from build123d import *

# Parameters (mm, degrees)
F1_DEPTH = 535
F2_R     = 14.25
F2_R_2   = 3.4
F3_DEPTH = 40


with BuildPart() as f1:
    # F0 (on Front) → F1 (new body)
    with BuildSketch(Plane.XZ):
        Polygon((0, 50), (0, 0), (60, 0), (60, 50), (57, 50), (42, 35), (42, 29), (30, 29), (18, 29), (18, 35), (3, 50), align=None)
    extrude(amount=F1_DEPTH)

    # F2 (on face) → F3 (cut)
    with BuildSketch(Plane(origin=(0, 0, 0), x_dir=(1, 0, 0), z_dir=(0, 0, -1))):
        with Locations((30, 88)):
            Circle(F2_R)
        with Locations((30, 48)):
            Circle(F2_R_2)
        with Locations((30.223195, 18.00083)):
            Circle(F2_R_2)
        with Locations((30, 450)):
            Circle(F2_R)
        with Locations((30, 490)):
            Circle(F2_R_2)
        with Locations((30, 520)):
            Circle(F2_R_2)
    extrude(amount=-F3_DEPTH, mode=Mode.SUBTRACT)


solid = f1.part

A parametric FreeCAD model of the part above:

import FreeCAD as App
import Part
import Sketcher
from FreeCAD import Vector
Q = App.Units.Quantity


def add_polygon(sketch, points):
    """Adds a closed chain of lines whose ends are joined by coincident constraints."""
    first, n = sketch.GeometryCount, len(points)
    for a, b in zip(points, points[1:] + points[:1]):
        sketch.addGeometry(Part.LineSegment(App.Vector(*a, 0), App.Vector(*b, 0)), False)
    for i in range(n):
        sketch.addConstraint(Sketcher.Constraint("Coincident", first + i, 2, first + (i + 1) % n, 1))

doc = App.newDocument("Part")
params = doc.addObject("Spreadsheet::Sheet", "Params")
for row, (alias, value) in enumerate([
    ("sketch1_width", "60 mm"),
    ("sketch1_width2", "3 mm"),
    ("sketch1_width3", "24 mm"),
    ("sketch1_height", "50 mm"),
    ("sketch1_height2", "6 mm"),
    ("pad1_length", "535 mm"),
    ("sketch2_diameter", "28.5 mm"),
    ("sketch2_diameter2", "6.8 mm"),
    ("pocket1_length", "40 mm"),
], start=1):
    params.set(f"A{row}", alias)
    params.set(f"B{row}", "=" + value)
    params.setAlias(f"B{row}", alias)

body = doc.addObject("PartDesign::Body", "Body")

sketch1 = body.newObject("Sketcher::SketchObject", "Sketch")
sketch1.AttachmentSupport = (doc.getObject("XZ_Plane"), [""])
sketch1.MapMode = "FlatFace"
add_polygon(sketch1, [(0, 50), (0, 0), (60, 0), (60, 50), (57, 50), (42, 35), (42, 29), (18, 29), (18, 35), (3, 50)])
sketch1.addConstraint(Sketcher.Constraint("Vertical", 0))
sketch1.addConstraint(Sketcher.Constraint("Horizontal", 1))
sketch1.addConstraint(Sketcher.Constraint("Vertical", 2))
sketch1.addConstraint(Sketcher.Constraint("Horizontal", 3))
sketch1.addConstraint(Sketcher.Constraint("Vertical", 5))
sketch1.addConstraint(Sketcher.Constraint("Horizontal", 6))
sketch1.addConstraint(Sketcher.Constraint("Vertical", 7))
sketch1.addConstraint(Sketcher.Constraint("Horizontal", 9))
sketch1.addConstraint(Sketcher.Constraint("Coincident", 0, 2, -1, 1))
sketch1.addConstraint(Sketcher.Constraint("Perpendicular", 4, 8))
sketch1.addConstraint(Sketcher.Constraint("Horizontal", 4, 2, 7, 2))
sketch1.addConstraint(Sketcher.Constraint("Horizontal", 3, 2, 8, 2))
sketch1.addConstraint(Sketcher.Constraint("Equal", 3, 9))
sketch1.addConstraint(Sketcher.Constraint("Equal", 4, 8))
sketch1.addConstraint(Sketcher.Constraint("DistanceX", 1, 1, 1, 2, Q("60 mm")))
sketch1.addConstraint(Sketcher.Constraint("DistanceX", 3, 2, 3, 1, Q("3 mm")))
sketch1.addConstraint(Sketcher.Constraint("DistanceX", 6, 2, 6, 1, Q("24 mm")))
sketch1.addConstraint(Sketcher.Constraint("DistanceY", 0, 2, 0, 1, Q("50 mm")))
sketch1.addConstraint(Sketcher.Constraint("DistanceY", 5, 2, 5, 1, Q("6 mm")))
sketch1.setExpression("Constraints[24]", "Params.sketch1_width")
sketch1.setExpression("Constraints[25]", "Params.sketch1_width2")
sketch1.setExpression("Constraints[26]", "Params.sketch1_width3")
sketch1.setExpression("Constraints[27]", "Params.sketch1_height")
sketch1.setExpression("Constraints[28]", "Params.sketch1_height2")
pad1 = body.newObject("PartDesign::Pad", "Pad")
pad1.Profile = sketch1
pad1.setExpression("Length", "Params.pad1_length")

sketch2 = body.newObject("Sketcher::SketchObject", "Sketch001")
sketch2.AttachmentSupport = (doc.getObject("XY_Plane"), [""])
sketch2.MapMode = "FlatFace"
sketch2.addGeometry(Part.Circle(Vector(30, -88, 0), Vector(0, 0, 1), 14.2), False)
sketch2.addGeometry(Part.Circle(Vector(30, -48, 0), Vector(0, 0, 1), 3.4), False)
sketch2.addGeometry(Part.Circle(Vector(30.2, -18, 0), Vector(0, 0, 1), 3.4), False)
sketch2.addGeometry(Part.Circle(Vector(30, -450, 0), Vector(0, 0, 1), 14.2), False)
sketch2.addGeometry(Part.Circle(Vector(30, -490, 0), Vector(0, 0, 1), 3.4), False)
sketch2.addGeometry(Part.Circle(Vector(30, -520, 0), Vector(0, 0, 1), 3.4), False)
sketch2.addConstraint(Sketcher.Constraint("Equal", 1, 2))
sketch2.addConstraint(Sketcher.Constraint("Equal", 0, 3))
sketch2.addConstraint(Sketcher.Constraint("Equal", 2, 4))
sketch2.addConstraint(Sketcher.Constraint("Equal", 4, 5))
sketch2.addConstraint(Sketcher.Constraint("Vertical", 0, 3, 1, 3))
sketch2.addConstraint(Sketcher.Constraint("Vertical", 1, 3, 3, 3))
sketch2.addConstraint(Sketcher.Constraint("Vertical", 3, 3, 4, 3))
sketch2.addConstraint(Sketcher.Constraint("Vertical", 4, 3, 5, 3))
sketch2.addConstraint(Sketcher.Constraint("Diameter", 0, Q("28.5 mm")))
sketch2.addConstraint(Sketcher.Constraint("Diameter", 1, Q("6.8 mm")))
sketch2.addConstraint(Sketcher.Constraint("DistanceX", -1, 1, 0, 3, Q("30 mm")))
sketch2.addConstraint(Sketcher.Constraint("DistanceY", 0, 3, -1, 1, Q("88 mm")))
sketch2.addConstraint(Sketcher.Constraint("DistanceY", 1, 3, -1, 1, Q("48 mm")))
sketch2.addConstraint(Sketcher.Constraint("DistanceY", 3, 3, -1, 1, Q("450 mm")))
sketch2.addConstraint(Sketcher.Constraint("DistanceY", 4, 3, -1, 1, Q("490 mm")))
sketch2.addConstraint(Sketcher.Constraint("DistanceY", 5, 3, -1, 1, Q("520 mm")))
sketch2.addConstraint(Sketcher.Constraint("DistanceY", 2, 3, -1, 1, Q("18.00083 mm")))
sketch2.addConstraint(Sketcher.Constraint("DistanceX", -1, 1, 2, 3, Q("30.223195 mm")))
sketch2.setExpression("Constraints[8]", "Params.sketch2_diameter")
sketch2.setExpression("Constraints[9]", "Params.sketch2_diameter2")
pocket1 = body.newObject("PartDesign::Pocket", "Pocket")
pocket1.Profile = sketch2
pocket1.setExpression("Length", "Params.pocket1_length")
pocket1.Reversed = True

doc.recompute()
